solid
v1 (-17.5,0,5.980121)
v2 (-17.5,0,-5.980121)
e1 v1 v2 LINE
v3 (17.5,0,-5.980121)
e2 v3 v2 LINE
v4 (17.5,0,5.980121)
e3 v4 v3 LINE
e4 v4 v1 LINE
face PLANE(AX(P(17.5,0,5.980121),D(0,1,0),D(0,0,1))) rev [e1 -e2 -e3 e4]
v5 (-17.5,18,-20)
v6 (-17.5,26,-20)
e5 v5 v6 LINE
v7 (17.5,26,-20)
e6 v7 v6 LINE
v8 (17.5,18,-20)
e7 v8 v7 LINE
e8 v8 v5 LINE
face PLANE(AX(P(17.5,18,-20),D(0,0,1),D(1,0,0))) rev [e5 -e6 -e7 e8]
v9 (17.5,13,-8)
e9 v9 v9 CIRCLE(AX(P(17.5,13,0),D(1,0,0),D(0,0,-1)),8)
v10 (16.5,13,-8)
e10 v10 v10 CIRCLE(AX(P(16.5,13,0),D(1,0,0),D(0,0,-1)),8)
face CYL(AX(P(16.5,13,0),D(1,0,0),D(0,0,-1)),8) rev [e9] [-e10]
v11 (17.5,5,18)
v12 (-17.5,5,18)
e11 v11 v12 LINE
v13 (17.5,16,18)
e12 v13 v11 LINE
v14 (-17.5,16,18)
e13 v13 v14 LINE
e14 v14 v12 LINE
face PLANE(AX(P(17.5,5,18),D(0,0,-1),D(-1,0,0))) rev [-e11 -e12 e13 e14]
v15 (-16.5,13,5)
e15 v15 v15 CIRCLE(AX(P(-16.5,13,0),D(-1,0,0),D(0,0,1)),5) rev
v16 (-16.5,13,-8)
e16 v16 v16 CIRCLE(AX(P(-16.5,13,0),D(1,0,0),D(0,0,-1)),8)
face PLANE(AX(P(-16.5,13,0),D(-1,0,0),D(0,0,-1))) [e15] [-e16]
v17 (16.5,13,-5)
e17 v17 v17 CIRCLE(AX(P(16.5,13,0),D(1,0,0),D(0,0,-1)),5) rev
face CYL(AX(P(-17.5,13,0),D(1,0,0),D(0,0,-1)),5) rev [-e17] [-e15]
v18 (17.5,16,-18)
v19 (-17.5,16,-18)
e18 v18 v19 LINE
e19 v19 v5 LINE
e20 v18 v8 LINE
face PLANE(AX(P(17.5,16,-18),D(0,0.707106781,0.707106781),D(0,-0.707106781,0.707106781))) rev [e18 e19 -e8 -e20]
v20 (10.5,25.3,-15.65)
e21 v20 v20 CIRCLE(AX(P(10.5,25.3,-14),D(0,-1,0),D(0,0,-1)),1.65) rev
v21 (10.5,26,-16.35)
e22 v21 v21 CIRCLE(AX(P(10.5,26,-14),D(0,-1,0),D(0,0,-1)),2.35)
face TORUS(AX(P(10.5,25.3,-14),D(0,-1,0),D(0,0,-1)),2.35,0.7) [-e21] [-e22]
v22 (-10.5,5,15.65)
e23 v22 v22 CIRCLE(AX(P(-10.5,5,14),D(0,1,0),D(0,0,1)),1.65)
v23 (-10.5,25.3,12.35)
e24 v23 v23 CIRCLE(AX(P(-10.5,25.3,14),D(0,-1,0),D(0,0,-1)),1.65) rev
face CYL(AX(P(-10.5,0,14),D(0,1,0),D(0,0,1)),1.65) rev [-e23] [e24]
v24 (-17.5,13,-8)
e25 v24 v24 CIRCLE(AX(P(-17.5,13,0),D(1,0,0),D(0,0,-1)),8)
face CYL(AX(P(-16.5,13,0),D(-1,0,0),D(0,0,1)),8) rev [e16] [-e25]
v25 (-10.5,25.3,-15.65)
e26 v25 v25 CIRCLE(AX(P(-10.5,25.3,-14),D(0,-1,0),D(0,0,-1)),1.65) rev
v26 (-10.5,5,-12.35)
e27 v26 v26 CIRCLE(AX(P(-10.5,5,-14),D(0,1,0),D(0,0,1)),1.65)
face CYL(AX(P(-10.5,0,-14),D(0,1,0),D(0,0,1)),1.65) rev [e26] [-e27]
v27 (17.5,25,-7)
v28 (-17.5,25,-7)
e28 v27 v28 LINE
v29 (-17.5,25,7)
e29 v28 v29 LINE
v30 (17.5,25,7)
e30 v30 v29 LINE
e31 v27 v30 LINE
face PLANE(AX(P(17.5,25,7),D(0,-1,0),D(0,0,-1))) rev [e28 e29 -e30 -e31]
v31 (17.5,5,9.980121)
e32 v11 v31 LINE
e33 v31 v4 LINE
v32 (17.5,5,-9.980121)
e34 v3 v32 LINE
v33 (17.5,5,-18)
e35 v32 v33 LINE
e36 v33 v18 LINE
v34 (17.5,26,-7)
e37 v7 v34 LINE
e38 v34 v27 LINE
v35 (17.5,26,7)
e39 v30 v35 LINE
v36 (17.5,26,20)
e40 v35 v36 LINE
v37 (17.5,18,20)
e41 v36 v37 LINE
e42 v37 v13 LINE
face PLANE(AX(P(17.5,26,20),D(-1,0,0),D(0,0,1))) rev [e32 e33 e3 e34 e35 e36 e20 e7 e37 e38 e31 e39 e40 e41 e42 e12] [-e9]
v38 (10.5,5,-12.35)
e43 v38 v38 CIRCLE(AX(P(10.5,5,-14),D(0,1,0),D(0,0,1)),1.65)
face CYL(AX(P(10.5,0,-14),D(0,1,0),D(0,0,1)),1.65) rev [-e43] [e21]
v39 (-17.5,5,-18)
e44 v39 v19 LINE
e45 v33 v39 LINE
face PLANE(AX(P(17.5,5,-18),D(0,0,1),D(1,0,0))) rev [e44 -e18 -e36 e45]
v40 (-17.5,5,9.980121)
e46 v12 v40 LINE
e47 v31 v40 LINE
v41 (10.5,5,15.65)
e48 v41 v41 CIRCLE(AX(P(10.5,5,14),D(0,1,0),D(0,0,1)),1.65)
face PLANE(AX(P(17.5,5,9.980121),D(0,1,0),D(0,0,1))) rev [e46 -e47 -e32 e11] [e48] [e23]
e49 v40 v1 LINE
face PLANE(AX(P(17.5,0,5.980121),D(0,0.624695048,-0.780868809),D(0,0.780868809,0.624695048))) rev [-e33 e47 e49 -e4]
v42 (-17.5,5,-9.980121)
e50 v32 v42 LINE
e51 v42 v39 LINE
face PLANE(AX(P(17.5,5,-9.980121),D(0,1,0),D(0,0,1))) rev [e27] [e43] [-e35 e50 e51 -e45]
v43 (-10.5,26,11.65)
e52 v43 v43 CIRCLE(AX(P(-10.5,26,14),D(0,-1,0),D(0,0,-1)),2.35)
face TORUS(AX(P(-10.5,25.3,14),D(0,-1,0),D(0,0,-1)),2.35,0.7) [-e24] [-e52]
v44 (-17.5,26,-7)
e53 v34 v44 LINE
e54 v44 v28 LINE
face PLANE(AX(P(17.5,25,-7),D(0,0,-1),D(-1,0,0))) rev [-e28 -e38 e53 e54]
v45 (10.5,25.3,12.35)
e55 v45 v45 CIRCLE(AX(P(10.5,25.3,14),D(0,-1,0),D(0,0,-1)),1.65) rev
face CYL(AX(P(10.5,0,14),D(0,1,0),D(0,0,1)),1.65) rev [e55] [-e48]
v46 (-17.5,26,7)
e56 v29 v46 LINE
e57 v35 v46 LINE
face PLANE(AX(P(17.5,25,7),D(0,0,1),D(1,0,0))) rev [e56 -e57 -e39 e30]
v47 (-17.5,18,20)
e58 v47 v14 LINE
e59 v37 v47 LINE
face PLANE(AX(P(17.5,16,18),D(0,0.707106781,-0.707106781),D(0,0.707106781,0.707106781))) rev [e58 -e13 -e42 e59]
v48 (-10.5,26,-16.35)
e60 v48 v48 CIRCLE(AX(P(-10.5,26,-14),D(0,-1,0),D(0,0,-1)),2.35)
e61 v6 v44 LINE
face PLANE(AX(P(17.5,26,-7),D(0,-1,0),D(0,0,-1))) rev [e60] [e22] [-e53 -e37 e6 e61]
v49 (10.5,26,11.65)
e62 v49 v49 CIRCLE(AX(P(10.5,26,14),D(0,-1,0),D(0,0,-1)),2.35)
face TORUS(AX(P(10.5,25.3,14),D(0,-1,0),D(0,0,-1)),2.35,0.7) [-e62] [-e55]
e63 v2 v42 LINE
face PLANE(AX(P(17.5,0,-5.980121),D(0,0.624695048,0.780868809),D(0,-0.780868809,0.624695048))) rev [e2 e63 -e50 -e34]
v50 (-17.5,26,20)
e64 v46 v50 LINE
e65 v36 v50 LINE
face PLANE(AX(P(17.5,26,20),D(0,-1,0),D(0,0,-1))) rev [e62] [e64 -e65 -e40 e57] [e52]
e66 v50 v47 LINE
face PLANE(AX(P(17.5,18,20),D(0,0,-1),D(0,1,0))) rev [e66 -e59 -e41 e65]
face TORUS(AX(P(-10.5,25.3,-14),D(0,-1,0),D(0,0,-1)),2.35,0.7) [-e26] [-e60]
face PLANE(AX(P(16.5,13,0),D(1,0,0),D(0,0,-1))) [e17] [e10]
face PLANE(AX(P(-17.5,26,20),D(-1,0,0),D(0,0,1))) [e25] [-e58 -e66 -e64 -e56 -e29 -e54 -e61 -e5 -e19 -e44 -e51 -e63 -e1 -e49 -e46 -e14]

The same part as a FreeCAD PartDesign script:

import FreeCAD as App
import Part
import Sketcher

V = App.Vector


def edges_at(feature, points):
    """Names of the edges that pass closest to the given points."""
    edges = feature.Shape.Edges
    near = lambda p: min(range(len(edges)), key=lambda i: edges[i].distToShape(Part.Vertex(*p))[0])
    return sorted({f"Edge{near(p) + 1}" for p in points})

doc = App.newDocument("Part")
body = doc.addObject("PartDesign::Body", "Body")

sketch1 = body.newObject("Sketcher::SketchObject", "Sketch")
sketch1.AttachmentSupport = (doc.getObject("YZ_Plane"), [""])
sketch1.MapMode = "FlatFace"
sketch1.addGeometry([
    Part.LineSegment(V(26, 7, 0), V(26, 20, 0)),
    Part.LineSegment(V(26, 20, 0), V(18, 20, 0)),
    Part.LineSegment(V(18, 20, 0), V(16, 18, 0)),
    Part.LineSegment(V(16, 18, 0), V(5, 18, 0)),
    Part.LineSegment(V(5, 18, 0), V(5, 9.980121, 0)),
    Part.LineSegment(V(5, 9.980121, 0), V(0, 5.980121, 0)),
    Part.LineSegment(V(0, 5.980121, 0), V(0, -5.980121, 0)),
    Part.LineSegment(V(0, -5.980121, 0), V(5, -9.980121, 0)),
    Part.LineSegment(V(5, -9.980121, 0), V(5, -18, 0)),
    Part.LineSegment(V(5, -18, 0), V(16, -18, 0)),
    Part.LineSegment(V(16, -18, 0), V(18, -20, 0)),
    Part.LineSegment(V(18, -20, 0), V(26, -20, 0)),
    Part.LineSegment(V(26, -20, 0), V(26, -7, 0)),
    Part.LineSegment(V(26, -7, 0), V(25, -7, 0)),
    Part.LineSegment(V(25, -7, 0), V(25, 7, 0)),
    Part.LineSegment(V(25, 7, 0), V(26, 7, 0)),
], False)
sketch1.addConstraint([
    Sketcher.Constraint("Coincident", 0, 2, 1, 1),
    Sketcher.Constraint("Coincident", 1, 2, 2, 1),
    Sketcher.Constraint("Coincident", 2, 2, 3, 1),
    Sketcher.Constraint("Coincident", 3, 2, 4, 1),
    Sketcher.Constraint("Coincident", 4, 2, 5, 1),
    Sketcher.Constraint("Coincident", 5, 2, 6, 1),
    Sketcher.Constraint("Coincident", 6, 2, 7, 1),
    Sketcher.Constraint("Coincident", 7, 2, 8, 1),
    Sketcher.Constraint("Coincident", 8, 2, 9, 1),
    Sketcher.Constraint("Coincident", 9, 2, 10, 1),
    Sketcher.Constraint("Coincident", 10, 2, 11, 1),
    Sketcher.Constraint("Coincident", 11, 2, 12, 1),
    Sketcher.Constraint("Coincident", 12, 2, 13, 1),
    Sketcher.Constraint("Coincident", 13, 2, 14, 1),
    Sketcher.Constraint("Coincident", 14, 2, 15, 1),
    Sketcher.Constraint("Coincident", 15, 2, 0, 1),
    Sketcher.Constraint("Vertical", 0),
    Sketcher.Constraint("Horizontal", 1),
    Sketcher.Constraint("Horizontal", 3),
    Sketcher.Constraint("Vertical", 4),
    Sketcher.Constraint("Vertical", 6),
    Sketcher.Constraint("Vertical", 8),
    Sketcher.Constraint("Horizontal", 9),
    Sketcher.Constraint("Horizontal", 11),
    Sketcher.Constraint("Vertical", 12),
    Sketcher.Constraint("Horizontal", 13),
    Sketcher.Constraint("Vertical", 14),
    Sketcher.Constraint("Horizontal", 15),
    Sketcher.Constraint("Symmetric", 5, 2, 6, 2, -1, 1),
    Sketcher.Constraint("Symmetric", 4, 2, 7, 2, -1),
    Sketcher.Constraint("Symmetric", 2, 2, 9, 2, -1),
    Sketcher.Constraint("Symmetric", 1, 2, 10, 2, -1),
    Sketcher.Constraint("Symmetric", 12, 2, 15, 2, -1),
    Sketcher.Constraint("Perpendicular", 2, 10),
    Sketcher.Constraint("DistanceX", 1, 2, 1, 1, 8.0),
    Sketcher.Constraint("DistanceX", 3, 2, 3, 1, 11.0),
    Sketcher.Constraint("DistanceX", 13, 2, 13, 1, 1.0),
    Sketcher.Constraint("DistanceY", 0, 1, 0, 2, 13.0),
    Sketcher.Constraint("DistanceY", 14, 1, 14, 2, 14.0),
    Sketcher.Constraint("DistanceX", -1, 1, 0, 2, 26.0),
    Sketcher.Constraint("DistanceX", -1, 1, 2, 2, 16.0),
    Sketcher.Constraint("DistanceY", 5, 2, 4, 2, 4.0),
    Sketcher.Constraint("DistanceY", 4, 2, 4, 1, 8.019879),
])
pad1 = body.newObject("PartDesign::Pad", "Pad")
pad1.Profile = sketch1
pad1.Length = 35
pad1.Midplane = True

sketch2 = body.newObject("Sketcher::SketchObject", "Sketch001")
sketch2.AttachmentSupport = (doc.getObject("YZ_Plane"), [""])
sketch2.MapMode = "FlatFace"
sketch2.AttachmentOffset = App.Placement(V(0, 0, 17.5), App.Rotation())
sketch2.addGeometry(Part.Circle(V(13, 0, 0), V(0, 0, 1), 5), False)
sketch2.addConstraint([
    Sketcher.Constraint("PointOnObject", 0, 3, -1),
    Sketcher.Constraint("Diameter", 0, 10.0),
    Sketcher.Constraint("DistanceX", -1, 1, 0, 3, 13.0),
])
pocket1 = body.newObject("PartDesign::Pocket", "Pocket")
pocket1.Profile = sketch2
pocket1.Type = "ThroughAll"

sketch3 = body.newObject("Sketcher::SketchObject", "Sketch002")
sketch3.AttachmentSupport = (doc.getObject("XZ_Plane"), [""])
sketch3.MapMode = "FlatFace"
sketch3.AttachmentOffset = App.Placement(V(0, 0, -26), App.Rotation())
sketch3.addGeometry([
    Part.Circle(V(-10.5, -14, 0), V(0, 0, 1), 1.65),
    Part.Circle(V(10.5, -14, 0), V(0, 0, 1), 1.65),
    Part.Circle(V(10.5, 14, 0), V(0, 0, 1), 1.65),
    Part.Circle(V(-10.5, 14, 0), V(0, 0, 1), 1.65),
], False)
sketch3.addConstraint([
    Sketcher.Constraint("Equal", 0, 1),
    Sketcher.Constraint("Equal", 1, 2),
    Sketcher.Constraint("Equal", 2, 3),
    Sketcher.Constraint("Symmetric", 0, 3, 2, 3, -1, 1),
    Sketcher.Constraint("Symmetric", 1, 3, 3, 3, -1, 1),
    Sketcher.Constraint("Symmetric", 0, 3, 1, 3, -2),
    Sketcher.Constraint("Diameter", 0, 3.3),
    Sketcher.Constraint("DistanceY", 0, 3, -1, 1, 14.0),
    Sketcher.Constraint("DistanceX", 0, 3, 1, 3, 21.0),
])
pocket2 = body.newObject("PartDesign::Pocket", "Pocket001")
pocket2.Profile = sketch3
pocket2.Type = "ThroughAll"
pocket2.Reversed = True
doc.recompute()

fillet = body.newObject("PartDesign::Fillet", "Fillet")
fillet.Base = (pocket2, edges_at(pocket2, [
    (-12.15, 26, -14),
    (8.85, 26, -14),
    (8.85, 26, 14),
    (-12.15, 26, 14),
]))
fillet.Radius = 0.7

sketch4 = body.newObject("Sketcher::SketchObject", "Sketch003")
sketch4.AttachmentSupport = (doc.getObject("YZ_Plane"), [""])
sketch4.MapMode = "FlatFace"
sketch4.AttachmentOffset = App.Placement(V(0, 0, 17.5), App.Rotation())
sketch4.addGeometry(Part.Circle(V(13, 0, 0), V(0, 0, 1), 8), False)
sketch4.addConstraint([
    Sketcher.Constraint("PointOnObject", 0, 3, -1),
    Sketcher.Constraint("Diameter", 0, 16.0),
    Sketcher.Constraint("DistanceX", -1, 1, 0, 3, 13.0),
])
pocket3 = body.newObject("PartDesign::Pocket", "Pocket002")
pocket3.Profile = sketch4
pocket3.Length = 1
doc.recompute()

mirrored = body.newObject("PartDesign::Mirrored", "Mirrored")
mirrored.Originals = [pocket3]
mirrored.MirrorPlane = (doc.getObject("YZ_Plane"), [""])
body.Tip = mirrored

doc.recompute()
